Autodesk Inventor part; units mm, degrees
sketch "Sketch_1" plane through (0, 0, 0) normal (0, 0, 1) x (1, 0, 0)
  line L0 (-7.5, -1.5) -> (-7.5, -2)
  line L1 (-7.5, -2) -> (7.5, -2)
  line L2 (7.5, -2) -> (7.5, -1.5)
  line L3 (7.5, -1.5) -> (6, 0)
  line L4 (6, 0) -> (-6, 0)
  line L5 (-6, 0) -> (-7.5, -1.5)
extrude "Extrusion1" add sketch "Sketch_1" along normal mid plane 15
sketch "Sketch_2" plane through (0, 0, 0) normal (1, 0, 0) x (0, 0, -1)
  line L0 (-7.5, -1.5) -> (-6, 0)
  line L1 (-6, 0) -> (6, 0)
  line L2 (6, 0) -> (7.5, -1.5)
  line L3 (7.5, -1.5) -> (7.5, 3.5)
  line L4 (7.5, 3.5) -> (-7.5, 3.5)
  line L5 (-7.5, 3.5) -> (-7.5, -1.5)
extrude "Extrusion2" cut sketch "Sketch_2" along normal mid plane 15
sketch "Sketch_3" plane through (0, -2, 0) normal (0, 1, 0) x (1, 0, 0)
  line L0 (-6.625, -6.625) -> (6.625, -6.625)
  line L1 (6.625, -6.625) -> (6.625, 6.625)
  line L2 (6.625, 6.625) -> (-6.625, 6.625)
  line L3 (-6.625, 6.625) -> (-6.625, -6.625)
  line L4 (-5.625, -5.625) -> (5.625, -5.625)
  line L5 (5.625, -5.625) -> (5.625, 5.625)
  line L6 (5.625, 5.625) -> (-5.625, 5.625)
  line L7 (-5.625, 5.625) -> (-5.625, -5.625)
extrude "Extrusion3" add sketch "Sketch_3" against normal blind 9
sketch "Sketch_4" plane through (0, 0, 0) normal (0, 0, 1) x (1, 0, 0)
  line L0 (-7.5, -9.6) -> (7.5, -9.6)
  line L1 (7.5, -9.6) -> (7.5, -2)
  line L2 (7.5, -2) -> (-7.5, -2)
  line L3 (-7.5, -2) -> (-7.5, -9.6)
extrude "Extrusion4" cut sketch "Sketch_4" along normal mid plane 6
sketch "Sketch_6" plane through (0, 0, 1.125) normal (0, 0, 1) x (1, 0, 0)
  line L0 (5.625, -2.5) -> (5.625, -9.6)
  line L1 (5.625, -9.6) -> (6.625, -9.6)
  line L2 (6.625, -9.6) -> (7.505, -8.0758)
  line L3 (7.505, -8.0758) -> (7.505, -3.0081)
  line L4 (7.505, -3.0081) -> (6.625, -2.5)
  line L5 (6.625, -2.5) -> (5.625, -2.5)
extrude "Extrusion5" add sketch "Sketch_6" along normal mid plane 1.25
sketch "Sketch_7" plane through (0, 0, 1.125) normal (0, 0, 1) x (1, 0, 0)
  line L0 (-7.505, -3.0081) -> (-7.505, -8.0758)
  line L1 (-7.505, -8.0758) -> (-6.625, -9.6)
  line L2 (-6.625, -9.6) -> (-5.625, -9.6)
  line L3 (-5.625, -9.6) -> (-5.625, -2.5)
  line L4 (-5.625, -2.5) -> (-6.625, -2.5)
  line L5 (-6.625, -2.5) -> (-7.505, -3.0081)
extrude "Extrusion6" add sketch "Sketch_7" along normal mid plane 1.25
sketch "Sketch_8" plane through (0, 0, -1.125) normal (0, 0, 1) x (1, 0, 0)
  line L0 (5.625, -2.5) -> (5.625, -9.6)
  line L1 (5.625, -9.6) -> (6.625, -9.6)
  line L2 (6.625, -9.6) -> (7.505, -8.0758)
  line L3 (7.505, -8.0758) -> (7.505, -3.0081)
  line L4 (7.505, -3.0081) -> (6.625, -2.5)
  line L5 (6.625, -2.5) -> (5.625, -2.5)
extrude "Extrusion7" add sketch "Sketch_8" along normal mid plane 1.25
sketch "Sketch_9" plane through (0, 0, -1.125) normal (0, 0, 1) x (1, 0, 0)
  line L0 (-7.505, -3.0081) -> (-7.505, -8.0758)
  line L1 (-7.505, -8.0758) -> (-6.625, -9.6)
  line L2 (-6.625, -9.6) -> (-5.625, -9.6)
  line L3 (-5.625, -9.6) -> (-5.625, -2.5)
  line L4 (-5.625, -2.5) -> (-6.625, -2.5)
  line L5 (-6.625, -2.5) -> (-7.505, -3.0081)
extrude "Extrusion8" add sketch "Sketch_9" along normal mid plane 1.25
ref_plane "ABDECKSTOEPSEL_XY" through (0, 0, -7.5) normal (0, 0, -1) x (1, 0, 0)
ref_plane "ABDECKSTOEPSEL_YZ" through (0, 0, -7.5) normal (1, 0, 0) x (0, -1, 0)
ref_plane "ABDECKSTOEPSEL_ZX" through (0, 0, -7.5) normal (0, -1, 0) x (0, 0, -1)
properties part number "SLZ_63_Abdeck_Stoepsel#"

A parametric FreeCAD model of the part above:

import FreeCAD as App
import Part
import Sketcher
from FreeCAD import Vector
Q = App.Units.Quantity


def add_polygon(sketch, points):
    """Adds a closed chain of lines whose ends are joined by coincident constraints."""
    first, n = sketch.GeometryCount, len(points)
    for a, b in zip(points, points[1:] + points[:1]):
        sketch.addGeometry(Part.LineSegment(App.Vector(*a, 0), App.Vector(*b, 0)), False)
    for i in range(n):
        sketch.addConstraint(Sketcher.Constraint("Coincident", first + i, 2, first + (i + 1) % n, 1))

doc = App.newDocument("Part")
body = doc.addObject("PartDesign::Body", "Body")

# Sketch on XY plane
sketch1 = doc.addObject("Sketcher::SketchObject", "Sketch")
body.addObject(sketch1)
sketch1.AttachmentSupport = (doc.XY_Plane, [""])
sketch1.MapMode = "FlatFace"
add_polygon(sketch1, [(-6, 0), (-7.5, -1.5), (-7.5, -2), (7.5, -2), (7.5, -1.5), (6, 0)])  # lines 0-5
sketch1.addConstraint(Sketcher.Constraint("Vertical", 1))
sketch1.addConstraint(Sketcher.Constraint("Horizontal", 2))
sketch1.addConstraint(Sketcher.Constraint("Vertical", 3))
sketch1.addConstraint(Sketcher.Constraint("Horizontal", 5))
sketch1.addConstraint(Sketcher.Constraint("Symmetric", 4, 2, 5, 2, -1, 1))
sketch1.addConstraint(Sketcher.Constraint("Symmetric", 0, 2, 3, 2, -2))
sketch1.addConstraint(Sketcher.Constraint("Perpendicular", 0, 4))
sketch1.addConstraint(Sketcher.Constraint("DistanceX", 2, 1, 2, 2, 15.0))
sketch1.addConstraint(Sketcher.Constraint("DistanceX", 5, 2, 5, 1, 12.0))
sketch1.addConstraint(Sketcher.Constraint("DistanceY", 1, 2, 1, 1, 0.5))
pad1 = doc.addObject("PartDesign::Pad", "Pad")
body.addObject(pad1)
pad1.Profile = sketch1
pad1.Length = 15
pad1.Midplane = True

# Sketch on YZ plane
sketch2 = doc.addObject("Sketcher::SketchObject", "Sketch001")
body.addObject(sketch2)
sketch2.AttachmentSupport = (doc.YZ_Plane, [""])
sketch2.MapMode = "FlatFace"
add_polygon(sketch2, [(3.5, 7.5), (-1.5, 7.5), (0, 6), (0, -6), (-1.5, -7.5), (3.5, -7.5)])  # lines 0-5
sketch2.addConstraint(Sketcher.Constraint("Horizontal", 0))
sketch2.addConstraint(Sketcher.Constraint("Vertical", 2))
sketch2.addConstraint(Sketcher.Constraint("Horizontal", 4))
sketch2.addConstraint(Sketcher.Constraint("Vertical", 5))
sketch2.addConstraint(Sketcher.Constraint("Symmetric", 1, 2, 2, 2, -1, 1))
sketch2.addConstraint(Sketcher.Constraint("Symmetric", 0, 2, 3, 2, -1))
sketch2.addConstraint(Sketcher.Constraint("Perpendicular", 1, 3))
sketch2.addConstraint(Sketcher.Constraint("DistanceX", 0, 2, 0, 1, 5.0))
sketch2.addConstraint(Sketcher.Constraint("DistanceY", 2, 2, 2, 1, 12.0))
sketch2.addConstraint(Sketcher.Constraint("DistanceY", 5, 1, 5, 2, 15.0))
pocket1 = doc.addObject("PartDesign::Pocket", "Pocket")
body.addObject(pocket1)
pocket1.Profile = sketch2
pocket1.Length = 15
pocket1.Midplane = True

# Sketch on XZ plane
sketch3 = doc.addObject("Sketcher::SketchObject", "Sketch002")
body.addObject(sketch3)
sketch3.AttachmentSupport = (doc.XZ_Plane, [""])
sketch3.MapMode = "FlatFace"
sketch3.AttachmentOffset = App.Placement(Vector(0, 0, 2), App.Rotation())
add_polygon(sketch3, [(-7, -7), (-7, 7), (7, 7), (7, -7)])  # lines 0-3
add_polygon(sketch3, [(6, 6), (-6, 6), (-6, -6), (6, -6)])  # lines 4-7
sketch3.addConstraint(Sketcher.Constraint("Vertical", 0))
sketch3.addConstraint(Sketcher.Constraint("Horizontal", 1))
sketch3.addConstraint(Sketcher.Constraint("Vertical", 2))
sketch3.addConstraint(Sketcher.Constraint("Horizontal", 3))
sketch3.addConstraint(Sketcher.Constraint("Horizontal", 4))
sketch3.addConstraint(Sketcher.Constraint("Vertical", 5))
sketch3.addConstraint(Sketcher.Constraint("Horizontal", 6))
sketch3.addConstraint(Sketcher.Constraint("Vertical", 7))
sketch3.addConstraint(Sketcher.Constraint("Symmetric", 0, 2, 2, 2, -1, 1))
sketch3.addConstraint(Sketcher.Constraint("Symmetric", 4, 2, 6, 2, -1, 1))
sketch3.addConstraint(Sketcher.Constraint("Equal", 3, 0))
sketch3.addConstraint(Sketcher.Constraint("Equal", 6, 5))
sketch3.addConstraint(Sketcher.Constraint("DistanceX", 0, 2, 4, 2, 1.0))
sketch3.addConstraint(Sketcher.Constraint("DistanceX", 1, 1, 1, 2, 13.25))
pad2 = doc.addObject("PartDesign::Pad", "Pad001")
body.addObject(pad2)
pad2.Profile = sketch3
pad2.Length = 9

# Sketch on XY plane
sketch4 = doc.addObject("Sketcher::SketchObject", "Sketch003")
body.addObject(sketch4)
sketch4.AttachmentSupport = (doc.XY_Plane, [""])
sketch4.MapMode = "FlatFace"
add_polygon(sketch4, [(-8, -2), (-8, -10), (8, -10), (8, -2)])  # lines 0-3
sketch4.addConstraint(Sketcher.Constraint("Vertical", 0))
sketch4.addConstraint(Sketcher.Constraint("Horizontal", 1))
sketch4.addConstraint(Sketcher.Constraint("Vertical", 2))
sketch4.addConstraint(Sketcher.Constraint("Horizontal", 3))
sketch4.addConstraint(Sketcher.Constraint("DistanceX", 1, 1, 1, 2, 15.0))
sketch4.addConstraint(Sketcher.Constraint("DistanceY", 0, 2, 0, 1, 7.6))
sketch4.addConstraint(Sketcher.Constraint("DistanceY", 2, 2, -1, 1, 2.0))
sketch4.addConstraint(Sketcher.Constraint("DistanceX", 0, 2, -1, 1, 7.5))
pocket2 = doc.addObject("PartDesign::Pocket", "Pocket001")
body.addObject(pocket2)
pocket2.Profile = sketch4
pocket2.Length = 6
pocket2.Midplane = True

# Sketch on XY plane
sketch5 = doc.addObject("Sketcher::SketchObject", "Sketch004")
body.addObject(sketch5)
sketch5.AttachmentSupport = (doc.XY_Plane, [""])
sketch5.MapMode = "FlatFace"
sketch5.AttachmentOffset = App.Placement(Vector(0, 0, 1.125), App.Rotation())
add_polygon(sketch5, [(6.6, -2.5), (5.6, -2.5), (5.6, -9.6), (6.6, -9.6), (7.5, -8.1), (7.5, -3)])  # lines 0-5
sketch5.addConstraint(Sketcher.Constraint("Horizontal", 0))
sketch5.addConstraint(Sketcher.Constraint("Vertical", 1))
sketch5.addConstraint(Sketcher.Constraint("Horizontal", 2))
sketch5.addConstraint(Sketcher.Constraint("Vertical", 4))
sketch5.addConstraint(Sketcher.Constraint("Perpendicular", 3, 5))
sketch5.addConstraint(Sketcher.Constraint("Vertical", 2, 2, 5, 2))
sketch5.addConstraint(Sketcher.Constraint("DistanceX", 0, 2, 0, 1, 1.0))
sketch5.addConstraint(Sketcher.Constraint("Angle", 3, Q("60 deg")))
sketch5.addConstraint(Sketcher.Constraint("DistanceY", 1, 2, 1, 1, 7.1))
sketch5.addConstraint(Sketcher.Constraint("DistanceY", 0, 2, -1, 1, 2.5))
sketch5.addConstraint(Sketcher.Constraint("Distance", 3, 1.76))
sketch5.addConstraint(Sketcher.Constraint("DistanceX", -1, 1, 0, 2, 5.625))
pad3 = doc.addObject("PartDesign::Pad", "Pad002")
body.addObject(pad3)
pad3.Profile = sketch5
pad3.Length = 1.25
pad3.Midplane = True

# Sketch on XY plane
sketch6 = doc.addObject("Sketcher::SketchObject", "Sketch005")
body.addObject(sketch6)
sketch6.AttachmentSupport = (doc.XY_Plane, [""])
sketch6.MapMode = "FlatFace"
sketch6.AttachmentOffset = App.Placement(Vector(0, 0, 1.125), App.Rotation())
add_polygon(sketch6, [(-6.6, -2.5), (-7.5, -3), (-7.5, -8.1), (-6.6, -9.6), (-5.6, -9.6), (-5.6, -2.5)])  # lines 0-5
sketch6.addConstraint(Sketcher.Constraint("Vertical", 1))
sketch6.addConstraint(Sketcher.Constraint("Horizontal", 3))
sketch6.addConstraint(Sketcher.Constraint("Vertical", 4))
sketch6.addConstraint(Sketcher.Constraint("Horizontal", 5))
sketch6.addConstraint(Sketcher.Constraint("Perpendicular", 0, 2))
sketch6.addConstraint(Sketcher.Constraint("Vertical", 2, 2, 5, 2))
sketch6.addConstraint(Sketcher.Constraint("DistanceX", 3, 1, 3, 2, 1.0))
sketch6.addConstraint(Sketcher.Constraint("Angle", 2, Q("-60 deg")))
sketch6.addConstraint(Sketcher.Constraint("DistanceY", 4, 1, 4, 2, 7.1))
sketch6.addConstraint(Sketcher.Constraint("DistanceY", 2, 2, -1, 1, 9.6))
sketch6.addConstraint(Sketcher.Constraint("Distance", 2, 1.76))
sketch6.addConstraint(Sketcher.Constraint("DistanceX", 0, 2, -1, 1, 7.505))
pad4 = doc.addObject("PartDesign::Pad", "Pad003")
body.addObject(pad4)
pad4.Profile = sketch6
pad4.Length = 1.25
pad4.Midplane = True

# Sketch on XY plane
sketch7 = doc.addObject("Sketcher::SketchObject", "Sketch006")
body.addObject(sketch7)
sketch7.AttachmentSupport = (doc.XY_Plane, [""])
sketch7.MapMode = "FlatFace"
sketch7.AttachmentOffset = App.Placement(Vector(0, 0, -1.125), App.Rotation())
add_polygon(sketch7, [(6.6, -2.5), (5.6, -2.5), (5.6, -9.6), (6.6, -9.6), (7.5, -8.1), (7.5, -3)])  # lines 0-5
sketch7.addConstraint(Sketcher.Constraint("Horizontal", 0))
sketch7.addConstraint(Sketcher.Constraint("Vertical", 1))
sketch7.addConstraint(Sketcher.Constraint("Horizontal", 2))
sketch7.addConstraint(Sketcher.Constraint("Vertical", 4))
sketch7.addConstraint(Sketcher.Constraint("Perpendicular", 3, 5))
sketch7.addConstraint(Sketcher.Constraint("Vertical", 2, 2, 5, 2))
sketch7.addConstraint(Sketcher.Constraint("DistanceX", 0, 2, 0, 1, 1.0))
sketch7.addConstraint(Sketcher.Constraint("Angle", 3, Q("60 deg")))
sketch7.addConstraint(Sketcher.Constraint("DistanceY", 1, 2, 1, 1, 7.1))
sketch7.addConstraint(Sketcher.Constraint("DistanceY", 0, 2, -1, 1, 2.5))
sketch7.addConstraint(Sketcher.Constraint("Distance", 3, 1.76))
sketch7.addConstraint(Sketcher.Constraint("DistanceX", -1, 1, 0, 2, 5.625))
pad5 = doc.addObject("PartDesign::Pad", "Pad004")
body.addObject(pad5)
pad5.Profile = sketch7
pad5.Length = 1.25
pad5.Midplane = True

# Sketch on XY plane
sketch8 = doc.addObject("Sketcher::SketchObject", "Sketch007")
body.addObject(sketch8)
sketch8.AttachmentSupport = (doc.XY_Plane, [""])
sketch8.MapMode = "FlatFace"
sketch8.AttachmentOffset = App.Placement(Vector(0, 0, -1.125), App.Rotation())
add_polygon(sketch8, [(-6.6, -2.5), (-7.5, -3), (-7.5, -8.1), (-6.6, -9.6), (-5.6, -9.6), (-5.6, -2.5)])  # lines 0-5
sketch8.addConstraint(Sketcher.Constraint("Vertical", 1))
sketch8.addConstraint(Sketcher.Constraint("Horizontal", 3))
sketch8.addConstraint(Sketcher.Constraint("Vertical", 4))
sketch8.addConstraint(Sketcher.Constraint("Horizontal", 5))
sketch8.addConstraint(Sketcher.Constraint("Perpendicular", 0, 2))
sketch8.addConstraint(Sketcher.Constraint("Vertical", 2, 2, 5, 2))
sketch8.addConstraint(Sketcher.Constraint("DistanceX", 3, 1, 3, 2, 1.0))
sketch8.addConstraint(Sketcher.Constraint("Angle", 2, Q("-60 deg")))
sketch8.addConstraint(Sketcher.Constraint("DistanceY", 4, 1, 4, 2, 7.1))
sketch8.addConstraint(Sketcher.Constraint("DistanceY", 2, 2, -1, 1, 9.6))
sketch8.addConstraint(Sketcher.Constraint("Distance", 2, 1.76))
sketch8.addConstraint(Sketcher.Constraint("DistanceX", 0, 2, -1, 1, 7.505))
pad6 = doc.addObject("PartDesign::Pad", "Pad005")
body.addObject(pad6)
pad6.Profile = sketch8
pad6.Length = 1.25
pad6.Midplane = True

doc.recompute()
